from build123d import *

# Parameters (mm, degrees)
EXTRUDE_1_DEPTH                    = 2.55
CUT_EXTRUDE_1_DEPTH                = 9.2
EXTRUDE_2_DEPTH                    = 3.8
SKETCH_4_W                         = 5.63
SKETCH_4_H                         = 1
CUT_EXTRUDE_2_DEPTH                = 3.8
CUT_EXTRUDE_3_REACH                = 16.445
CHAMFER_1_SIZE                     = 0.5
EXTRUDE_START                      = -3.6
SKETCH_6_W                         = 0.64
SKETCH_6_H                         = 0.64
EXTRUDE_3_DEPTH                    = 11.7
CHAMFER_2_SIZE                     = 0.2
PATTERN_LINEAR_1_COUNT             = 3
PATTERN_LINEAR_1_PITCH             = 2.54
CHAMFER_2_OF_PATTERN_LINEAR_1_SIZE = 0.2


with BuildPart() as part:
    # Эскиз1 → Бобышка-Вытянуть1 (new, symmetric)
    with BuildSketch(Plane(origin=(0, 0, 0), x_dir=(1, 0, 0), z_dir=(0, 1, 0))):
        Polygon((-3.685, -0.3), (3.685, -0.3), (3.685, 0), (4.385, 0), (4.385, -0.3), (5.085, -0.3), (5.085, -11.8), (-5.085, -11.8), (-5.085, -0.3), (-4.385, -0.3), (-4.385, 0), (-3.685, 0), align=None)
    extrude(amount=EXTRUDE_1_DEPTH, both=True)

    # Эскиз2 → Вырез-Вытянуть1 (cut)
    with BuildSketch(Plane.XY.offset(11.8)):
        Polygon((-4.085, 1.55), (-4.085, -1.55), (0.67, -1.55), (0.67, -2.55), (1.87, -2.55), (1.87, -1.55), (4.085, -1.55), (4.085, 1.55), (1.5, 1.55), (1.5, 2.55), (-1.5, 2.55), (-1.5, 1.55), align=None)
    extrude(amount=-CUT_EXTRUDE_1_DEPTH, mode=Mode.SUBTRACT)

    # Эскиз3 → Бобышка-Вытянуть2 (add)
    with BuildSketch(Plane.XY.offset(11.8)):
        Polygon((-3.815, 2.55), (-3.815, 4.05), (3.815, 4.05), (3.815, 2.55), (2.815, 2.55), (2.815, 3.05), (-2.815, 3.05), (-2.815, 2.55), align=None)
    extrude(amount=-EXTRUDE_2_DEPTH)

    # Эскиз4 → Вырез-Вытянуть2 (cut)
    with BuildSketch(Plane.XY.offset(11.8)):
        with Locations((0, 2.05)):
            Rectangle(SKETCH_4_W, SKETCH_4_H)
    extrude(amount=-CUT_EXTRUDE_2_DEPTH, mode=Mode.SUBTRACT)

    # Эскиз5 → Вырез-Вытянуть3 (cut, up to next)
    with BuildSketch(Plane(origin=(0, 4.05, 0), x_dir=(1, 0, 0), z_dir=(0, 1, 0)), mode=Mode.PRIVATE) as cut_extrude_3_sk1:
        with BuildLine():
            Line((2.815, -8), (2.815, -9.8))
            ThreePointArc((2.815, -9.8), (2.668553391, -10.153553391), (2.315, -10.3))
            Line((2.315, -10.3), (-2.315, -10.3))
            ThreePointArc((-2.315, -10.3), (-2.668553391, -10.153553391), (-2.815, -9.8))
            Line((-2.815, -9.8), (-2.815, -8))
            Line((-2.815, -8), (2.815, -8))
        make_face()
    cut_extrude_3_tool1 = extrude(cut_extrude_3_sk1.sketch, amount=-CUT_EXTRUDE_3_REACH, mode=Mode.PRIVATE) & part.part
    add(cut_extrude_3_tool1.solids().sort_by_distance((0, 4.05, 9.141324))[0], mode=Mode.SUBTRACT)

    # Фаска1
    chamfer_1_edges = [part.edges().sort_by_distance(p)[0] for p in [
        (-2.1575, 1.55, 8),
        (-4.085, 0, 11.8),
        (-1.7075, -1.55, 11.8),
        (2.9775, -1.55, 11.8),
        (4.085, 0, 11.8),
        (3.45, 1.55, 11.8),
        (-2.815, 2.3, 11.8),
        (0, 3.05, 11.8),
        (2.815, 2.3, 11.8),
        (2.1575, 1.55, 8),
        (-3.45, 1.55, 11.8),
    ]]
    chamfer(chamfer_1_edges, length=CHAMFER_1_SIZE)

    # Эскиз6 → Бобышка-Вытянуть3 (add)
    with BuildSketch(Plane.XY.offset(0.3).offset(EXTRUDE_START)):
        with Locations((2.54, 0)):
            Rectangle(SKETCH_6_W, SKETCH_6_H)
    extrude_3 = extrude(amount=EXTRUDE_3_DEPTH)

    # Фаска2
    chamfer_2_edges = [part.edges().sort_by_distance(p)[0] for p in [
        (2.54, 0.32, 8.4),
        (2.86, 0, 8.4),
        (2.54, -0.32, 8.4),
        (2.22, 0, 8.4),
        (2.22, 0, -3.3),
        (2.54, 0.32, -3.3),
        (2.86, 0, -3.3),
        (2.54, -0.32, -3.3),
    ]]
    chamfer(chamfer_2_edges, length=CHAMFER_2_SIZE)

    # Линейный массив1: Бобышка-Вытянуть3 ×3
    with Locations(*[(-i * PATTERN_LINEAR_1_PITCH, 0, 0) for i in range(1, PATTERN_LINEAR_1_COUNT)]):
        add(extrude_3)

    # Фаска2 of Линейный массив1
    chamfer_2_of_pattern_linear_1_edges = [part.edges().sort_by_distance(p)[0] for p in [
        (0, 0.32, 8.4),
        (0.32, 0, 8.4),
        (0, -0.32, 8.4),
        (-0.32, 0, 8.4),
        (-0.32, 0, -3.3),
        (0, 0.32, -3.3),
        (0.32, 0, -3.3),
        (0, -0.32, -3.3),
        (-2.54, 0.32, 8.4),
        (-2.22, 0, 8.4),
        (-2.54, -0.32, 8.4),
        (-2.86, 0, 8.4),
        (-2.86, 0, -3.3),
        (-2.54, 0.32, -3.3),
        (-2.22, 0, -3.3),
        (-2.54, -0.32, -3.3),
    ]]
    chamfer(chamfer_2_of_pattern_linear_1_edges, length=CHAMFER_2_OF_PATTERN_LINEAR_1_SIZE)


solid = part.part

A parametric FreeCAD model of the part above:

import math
import FreeCAD as App
import Part
import Sketcher

V = App.Vector


def edges_at(feature, points):
    """Names of the edges that pass closest to the given points."""
    edges = feature.Shape.Edges
    near = lambda p: min(range(len(edges)), key=lambda i: edges[i].distToShape(Part.Vertex(*p))[0])
    return sorted({f"Edge{near(p) + 1}" for p in points})


def add_polygon(sketch, points):
    """Adds a closed chain of lines whose ends are joined by coincident constraints."""
    first, n = sketch.GeometryCount, len(points)
    for a, b in zip(points, points[1:] + points[:1]):
        sketch.addGeometry(Part.LineSegment(App.Vector(*a, 0), App.Vector(*b, 0)), False)
    for i in range(n):
        sketch.addConstraint(Sketcher.Constraint("Coincident", first + i, 2, first + (i + 1) % n, 1))

doc = App.newDocument("Part")
body = doc.addObject("PartDesign::Body", "Body")

# Sketch on XZ plane
sketch1 = body.newObject("Sketcher::SketchObject", "Sketch")
sketch1.AttachmentSupport = (doc.getObject("XZ_Plane"), [""])
sketch1.MapMode = "FlatFace"
add_polygon(sketch1, [(3.69, 0.3), (-3.69, 0.3), (-3.69, 0), (-4.38, 0), (-4.38, 0.3), (-5.08, 0.3), (-5.08, 11.8), (5.08, 11.8), (5.08, 0.3), (4.38, 0.3), (4.38, 0), (3.69, 0)])  # lines 0-11
sketch1.addConstraint([
    Sketcher.Constraint("Horizontal", 0),
    Sketcher.Constraint("Vertical", 1),
    Sketcher.Constraint("Horizontal", 2),
    Sketcher.Constraint("Vertical", 3),
    Sketcher.Constraint("Horizontal", 4),
    Sketcher.Constraint("Vertical", 5),
    Sketcher.Constraint("Horizontal", 6),
    Sketcher.Constraint("Vertical", 7),
    Sketcher.Constraint("Horizontal", 8),
    Sketcher.Constraint("Vertical", 9),
    Sketcher.Constraint("Horizontal", 10),
    Sketcher.Constraint("Vertical", 11),
    Sketcher.Constraint("Symmetric", 2, 2, 9, 2, -1, 1),
    Sketcher.Constraint("Symmetric", 4, 2, 7, 2, -2),
    Sketcher.Constraint("Symmetric", 1, 2, 10, 2, -2),
    Sketcher.Constraint("Horizontal", 0, 2, 3, 2),
    Sketcher.Constraint("Equal", 2, 4),
    Sketcher.Constraint("DistanceX", 2, 2, 2, 1, 0.7),
    Sketcher.Constraint("DistanceY", 1, 2, 1, 1, 0.3),
    Sketcher.Constraint("DistanceY", 5, 1, 5, 2, 11.5),
    Sketcher.Constraint("DistanceX", 0, 2, 0, 1, 7.37),
])
pad1 = body.newObject("PartDesign::Pad", "Pad")
pad1.Profile = sketch1
pad1.Length = 5.1
pad1.Midplane = True

# Sketch on XY plane
sketch2 = body.newObject("Sketcher::SketchObject", "Sketch001")
sketch2.AttachmentSupport = (doc.getObject("XY_Plane"), [""])
sketch2.MapMode = "FlatFace"
sketch2.AttachmentOffset = App.Placement(V(0, 0, 11.8), App.Rotation())
add_polygon(sketch2, [(-4.1, 1.6), (-4.1, -1.6), (0.7, -1.6), (0.7, -2.5), (1.9, -2.5), (1.9, -1.6), (4.1, -1.6), (4.1, 1.6), (1.5, 1.6), (1.5, 2.5), (-1.5, 2.5), (-1.5, 1.6)])  # lines 0-11
sketch2.addConstraint([
    Sketcher.Constraint("Vertical", 0),
    Sketcher.Constraint("Horizontal", 1),
    Sketcher.Constraint("Vertical", 2),
    Sketcher.Constraint("Horizontal", 3),
    Sketcher.Constraint("Vertical", 4),
    Sketcher.Constraint("Horizontal", 5),
    Sketcher.Constraint("Vertical", 6),
    Sketcher.Constraint("Horizontal", 7),
    Sketcher.Constraint("Vertical", 8),
    Sketcher.Constraint("Horizontal", 9),
    Sketcher.Constraint("Vertical", 10),
    Sketcher.Constraint("Horizontal", 11),
    Sketcher.Constraint("Symmetric", 0, 2, 6, 2, -1, 1),
    Sketcher.Constraint("Symmetric", 7, 2, 10, 2, -2),
    Sketcher.Constraint("Horizontal", 1, 2, 4, 2),
    Sketcher.Constraint("Equal", 4, 8),
    Sketcher.Constraint("DistanceX", 9, 2, 9, 1, 3.0),
    Sketcher.Constraint("DistanceY", 2, 2, 2, 1, 1.0),
    Sketcher.Constraint("DistanceX", 3, 1, 3, 2, 1.2),
    Sketcher.Constraint("DistanceY", 0, 2, 0, 1, 3.1),
    Sketcher.Constraint("DistanceX", 1, 1, 1, 2, 4.755),
    Sketcher.Constraint("DistanceX", 5, 1, 5, 2, 2.215),
])
pocket1 = body.newObject("PartDesign::Pocket", "Pocket")
pocket1.Profile = sketch2
pocket1.Length = 9.2

# Sketch on XY plane
sketch3 = body.newObject("Sketcher::SketchObject", "Sketch002")
sketch3.AttachmentSupport = (doc.getObject("XY_Plane"), [""])
sketch3.MapMode = "FlatFace"
sketch3.AttachmentOffset = App.Placement(V(0, 0, 11.8), App.Rotation())
add_polygon(sketch3, [(-3.8, 4), (-3.8, 2.5), (-2.8, 2.5), (-2.8, 3), (2.8, 3), (2.8, 2.5), (3.8, 2.5), (3.8, 4)])  # lines 0-7
sketch3.addConstraint([
    Sketcher.Constraint("Vertical", 0),
    Sketcher.Constraint("Horizontal", 1),
    Sketcher.Constraint("Vertical", 2),
    Sketcher.Constraint("Horizontal", 3),
    Sketcher.Constraint("Vertical", 4),
    Sketcher.Constraint("Horizontal", 5),
    Sketcher.Constraint("Vertical", 6),
    Sketcher.Constraint("Horizontal", 7),
    Sketcher.Constraint("Symmetric", 1, 2, 4, 2, -2),
    Sketcher.Constraint("Equal", 1, 5),
    Sketcher.Constraint("DistanceX", 1, 1, 1, 2, 1.0),
    Sketcher.Constraint("DistanceY", 0, 2, 0, 1, 1.5),
    Sketcher.Constraint("DistanceY", 2, 1, 2, 2, 0.5),
    Sketcher.Constraint("DistanceX", 3, 1, 3, 2, 5.63),
    Sketcher.Constraint("DistanceY", -1, 1, 0, 2, 2.55),
])
pad2 = body.newObject("PartDesign::Pad", "Pad001")
pad2.Profile = sketch3
pad2.Length = 3.8
pad2.Reversed = True

# Sketch on XY plane
sketch4 = body.newObject("Sketcher::SketchObject", "Sketch003")
sketch4.AttachmentSupport = (doc.getObject("XY_Plane"), [""])
sketch4.MapMode = "FlatFace"
sketch4.AttachmentOffset = App.Placement(V(0, 0, 11.8), App.Rotation())
add_polygon(sketch4, [(-2.8, 2.5), (-2.8, 1.6), (2.8, 1.6), (2.8, 2.5)])  # lines 0-3
sketch4.addConstraint([
    Sketcher.Constraint("Vertical", 0),
    Sketcher.Constraint("Horizontal", 1),
    Sketcher.Constraint("Vertical", 2),
    Sketcher.Constraint("Horizontal", 3),
    Sketcher.Constraint("DistanceY", 0, 2, 0, 1, 1.0),
    Sketcher.Constraint("DistanceX", 1, 1, 1, 2, 5.63),
    Sketcher.Constraint("DistanceY", -1, 1, 0, 2, 1.55),
    Sketcher.Constraint("DistanceX", 0, 2, -1, 1, 2.815),
])
pocket2 = body.newObject("PartDesign::Pocket", "Pocket001")
pocket2.Profile = sketch4
pocket2.Length = 3.8

# Sketch on XZ plane
sketch5 = body.newObject("Sketcher::SketchObject", "Sketch004")
sketch5.AttachmentSupport = (doc.getObject("XZ_Plane"), [""])
sketch5.MapMode = "FlatFace"
sketch5.AttachmentOffset = App.Placement(V(0, 0, -4.05), App.Rotation())
sketch5.addGeometry([
    Part.LineSegment(V(2.81, 9.8, 0), V(2.81, 8, 0)),  # 0
    Part.LineSegment(V(2.81, 8, 0), V(-2.81, 8, 0)),  # 1
    Part.LineSegment(V(-2.81, 8, 0), V(-2.81, 9.8, 0)),  # 2
    Part.ArcOfCircle(Part.Circle(V(-2.32, 9.8, 0), V(0, 0, 1), 0.5), math.radians(90), math.radians(180)),  # 3
    Part.LineSegment(V(-2.31, 10.3, 0), V(2.31, 10.3, 0)),  # 4
    Part.ArcOfCircle(Part.Circle(V(2.32, 9.8, 0), V(0, 0, 1), 0.5), math.radians(0), math.radians(90)),  # 5
], False)
sketch5.addConstraint([
    Sketcher.Constraint("Coincident", 0, 2, 1, 1),
    Sketcher.Constraint("Coincident", 1, 2, 2, 1),
    Sketcher.Constraint("Tangent", 2, 2, 3, 2),
    Sketcher.Constraint("Tangent", 3, 1, 4, 1),
    Sketcher.Constraint("Tangent", 4, 2, 5, 2),
    Sketcher.Constraint("Tangent", 5, 1, 0, 1),
    Sketcher.Constraint("Vertical", 0),
    Sketcher.Constraint("Horizontal", 1),
    Sketcher.Constraint("Vertical", 2),
    Sketcher.Constraint("Horizontal", 4),
    Sketcher.Constraint("Equal", 3, 5),
    Sketcher.Constraint("Radius", 3, 0.5),
    Sketcher.Constraint("DistanceY", 0, 2, 0, 1, 1.8),
    Sketcher.Constraint("DistanceY", -1, 1, 0, 2, 8.0),
    Sketcher.Constraint("DistanceX", 1, 2, 1, 1, 5.63),
    Sketcher.Constraint("DistanceX", 3, 3, -1, 1, 2.315),
])
pocket3 = body.newObject("PartDesign::Pocket", "Pocket002")
pocket3.Profile = sketch5
pocket3.Type = "UpToFirst"
pocket3.Reversed = True
doc.recompute()

chamfer = body.newObject("PartDesign::Chamfer", "Chamfer")
chamfer.Base = (pocket3, edges_at(pocket3, [
    (-2.158, 1.55, 8),
    (-4.085, 0, 11.8),
    (-1.708, -1.55, 11.8),
    (2.978, -1.55, 11.8),
    (4.085, 0, 11.8),
    (3.45, 1.55, 11.8),
    (-2.815, 2.3, 11.8),
    (0, 3.05, 11.8),
    (2.815, 2.3, 11.8),
    (2.158, 1.55, 8),
    (-3.45, 1.55, 11.8),
]))
chamfer.Size = 0.5

# Sketch on XY plane
sketch6 = body.newObject("Sketcher::SketchObject", "Sketch005")
sketch6.AttachmentSupport = (doc.getObject("XY_Plane"), [""])
sketch6.MapMode = "FlatFace"
sketch6.AttachmentOffset = App.Placement(V(0, 0, -3.3), App.Rotation())
add_polygon(sketch6, [(2.2, 0.3), (2.2, -0.3), (2.9, -0.3), (2.9, 0.3)])  # lines 0-3
sketch6.addConstraint([
    Sketcher.Constraint("Vertical", 0),
    Sketcher.Constraint("Horizontal", 1),
    Sketcher.Constraint("Vertical", 2),
    Sketcher.Constraint("Horizontal", 3),
    Sketcher.Constraint("Equal", 3, 0),
    Sketcher.Constraint("DistanceX", 1, 1, 1, 2, 0.64),
    Sketcher.Constraint("DistanceX", -1, 1, 0, 2, 2.22),
    Sketcher.Constraint("DistanceY", 0, 2, -1, 1, 0.32),
])
pad3 = body.newObject("PartDesign::Pad", "Pad002")
pad3.Profile = sketch6
pad3.Length = 11.7
doc.recompute()

chamfer2 = body.newObject("PartDesign::Chamfer", "Chamfer001")
chamfer2.Base = (pad3, edges_at(pad3, [
    (2.54, 0.32, 8.4),
    (2.86, 0, 8.4),
    (2.54, -0.32, 8.4),
    (2.22, 0, 8.4),
    (2.22, 0, -3.3),
    (2.54, 0.32, -3.3),
    (2.86, 0, -3.3),
    (2.54, -0.32, -3.3),
]))
chamfer2.Size = 0.2
doc.recompute()

linearpattern = body.newObject("PartDesign::LinearPattern", "LinearPattern")
linearpattern.Originals = [pad3]
linearpattern.Direction = (doc.getObject("X_Axis"), [""])
linearpattern.Mode = "offset"
linearpattern.Offset = 2.54
linearpattern.Occurrences = 3
linearpattern.Reversed = True
body.Tip = linearpattern
doc.recompute()

chamfer3 = body.newObject("PartDesign::Chamfer", "Chamfer002")
chamfer3.Base = (linearpattern, edges_at(linearpattern, [
    (0, 0.32, 8.4),
    (0.32, 0, 8.4),
    (0, -0.32, 8.4),
    (-0.32, 0, 8.4),
    (-0.32, 0, -3.3),
    (0, 0.32, -3.3),
    (0.32, 0, -3.3),
    (0, -0.32, -3.3),
    (-2.54, 0.32, 8.4),
    (-2.22, 0, 8.4),
    (-2.54, -0.32, 8.4),
    (-2.86, 0, 8.4),
    (-2.86, 0, -3.3),
    (-2.54, 0.32, -3.3),
    (-2.22, 0, -3.3),
    (-2.54, -0.32, -3.3),
]))
chamfer3.Size = 0.2

doc.recompute()
